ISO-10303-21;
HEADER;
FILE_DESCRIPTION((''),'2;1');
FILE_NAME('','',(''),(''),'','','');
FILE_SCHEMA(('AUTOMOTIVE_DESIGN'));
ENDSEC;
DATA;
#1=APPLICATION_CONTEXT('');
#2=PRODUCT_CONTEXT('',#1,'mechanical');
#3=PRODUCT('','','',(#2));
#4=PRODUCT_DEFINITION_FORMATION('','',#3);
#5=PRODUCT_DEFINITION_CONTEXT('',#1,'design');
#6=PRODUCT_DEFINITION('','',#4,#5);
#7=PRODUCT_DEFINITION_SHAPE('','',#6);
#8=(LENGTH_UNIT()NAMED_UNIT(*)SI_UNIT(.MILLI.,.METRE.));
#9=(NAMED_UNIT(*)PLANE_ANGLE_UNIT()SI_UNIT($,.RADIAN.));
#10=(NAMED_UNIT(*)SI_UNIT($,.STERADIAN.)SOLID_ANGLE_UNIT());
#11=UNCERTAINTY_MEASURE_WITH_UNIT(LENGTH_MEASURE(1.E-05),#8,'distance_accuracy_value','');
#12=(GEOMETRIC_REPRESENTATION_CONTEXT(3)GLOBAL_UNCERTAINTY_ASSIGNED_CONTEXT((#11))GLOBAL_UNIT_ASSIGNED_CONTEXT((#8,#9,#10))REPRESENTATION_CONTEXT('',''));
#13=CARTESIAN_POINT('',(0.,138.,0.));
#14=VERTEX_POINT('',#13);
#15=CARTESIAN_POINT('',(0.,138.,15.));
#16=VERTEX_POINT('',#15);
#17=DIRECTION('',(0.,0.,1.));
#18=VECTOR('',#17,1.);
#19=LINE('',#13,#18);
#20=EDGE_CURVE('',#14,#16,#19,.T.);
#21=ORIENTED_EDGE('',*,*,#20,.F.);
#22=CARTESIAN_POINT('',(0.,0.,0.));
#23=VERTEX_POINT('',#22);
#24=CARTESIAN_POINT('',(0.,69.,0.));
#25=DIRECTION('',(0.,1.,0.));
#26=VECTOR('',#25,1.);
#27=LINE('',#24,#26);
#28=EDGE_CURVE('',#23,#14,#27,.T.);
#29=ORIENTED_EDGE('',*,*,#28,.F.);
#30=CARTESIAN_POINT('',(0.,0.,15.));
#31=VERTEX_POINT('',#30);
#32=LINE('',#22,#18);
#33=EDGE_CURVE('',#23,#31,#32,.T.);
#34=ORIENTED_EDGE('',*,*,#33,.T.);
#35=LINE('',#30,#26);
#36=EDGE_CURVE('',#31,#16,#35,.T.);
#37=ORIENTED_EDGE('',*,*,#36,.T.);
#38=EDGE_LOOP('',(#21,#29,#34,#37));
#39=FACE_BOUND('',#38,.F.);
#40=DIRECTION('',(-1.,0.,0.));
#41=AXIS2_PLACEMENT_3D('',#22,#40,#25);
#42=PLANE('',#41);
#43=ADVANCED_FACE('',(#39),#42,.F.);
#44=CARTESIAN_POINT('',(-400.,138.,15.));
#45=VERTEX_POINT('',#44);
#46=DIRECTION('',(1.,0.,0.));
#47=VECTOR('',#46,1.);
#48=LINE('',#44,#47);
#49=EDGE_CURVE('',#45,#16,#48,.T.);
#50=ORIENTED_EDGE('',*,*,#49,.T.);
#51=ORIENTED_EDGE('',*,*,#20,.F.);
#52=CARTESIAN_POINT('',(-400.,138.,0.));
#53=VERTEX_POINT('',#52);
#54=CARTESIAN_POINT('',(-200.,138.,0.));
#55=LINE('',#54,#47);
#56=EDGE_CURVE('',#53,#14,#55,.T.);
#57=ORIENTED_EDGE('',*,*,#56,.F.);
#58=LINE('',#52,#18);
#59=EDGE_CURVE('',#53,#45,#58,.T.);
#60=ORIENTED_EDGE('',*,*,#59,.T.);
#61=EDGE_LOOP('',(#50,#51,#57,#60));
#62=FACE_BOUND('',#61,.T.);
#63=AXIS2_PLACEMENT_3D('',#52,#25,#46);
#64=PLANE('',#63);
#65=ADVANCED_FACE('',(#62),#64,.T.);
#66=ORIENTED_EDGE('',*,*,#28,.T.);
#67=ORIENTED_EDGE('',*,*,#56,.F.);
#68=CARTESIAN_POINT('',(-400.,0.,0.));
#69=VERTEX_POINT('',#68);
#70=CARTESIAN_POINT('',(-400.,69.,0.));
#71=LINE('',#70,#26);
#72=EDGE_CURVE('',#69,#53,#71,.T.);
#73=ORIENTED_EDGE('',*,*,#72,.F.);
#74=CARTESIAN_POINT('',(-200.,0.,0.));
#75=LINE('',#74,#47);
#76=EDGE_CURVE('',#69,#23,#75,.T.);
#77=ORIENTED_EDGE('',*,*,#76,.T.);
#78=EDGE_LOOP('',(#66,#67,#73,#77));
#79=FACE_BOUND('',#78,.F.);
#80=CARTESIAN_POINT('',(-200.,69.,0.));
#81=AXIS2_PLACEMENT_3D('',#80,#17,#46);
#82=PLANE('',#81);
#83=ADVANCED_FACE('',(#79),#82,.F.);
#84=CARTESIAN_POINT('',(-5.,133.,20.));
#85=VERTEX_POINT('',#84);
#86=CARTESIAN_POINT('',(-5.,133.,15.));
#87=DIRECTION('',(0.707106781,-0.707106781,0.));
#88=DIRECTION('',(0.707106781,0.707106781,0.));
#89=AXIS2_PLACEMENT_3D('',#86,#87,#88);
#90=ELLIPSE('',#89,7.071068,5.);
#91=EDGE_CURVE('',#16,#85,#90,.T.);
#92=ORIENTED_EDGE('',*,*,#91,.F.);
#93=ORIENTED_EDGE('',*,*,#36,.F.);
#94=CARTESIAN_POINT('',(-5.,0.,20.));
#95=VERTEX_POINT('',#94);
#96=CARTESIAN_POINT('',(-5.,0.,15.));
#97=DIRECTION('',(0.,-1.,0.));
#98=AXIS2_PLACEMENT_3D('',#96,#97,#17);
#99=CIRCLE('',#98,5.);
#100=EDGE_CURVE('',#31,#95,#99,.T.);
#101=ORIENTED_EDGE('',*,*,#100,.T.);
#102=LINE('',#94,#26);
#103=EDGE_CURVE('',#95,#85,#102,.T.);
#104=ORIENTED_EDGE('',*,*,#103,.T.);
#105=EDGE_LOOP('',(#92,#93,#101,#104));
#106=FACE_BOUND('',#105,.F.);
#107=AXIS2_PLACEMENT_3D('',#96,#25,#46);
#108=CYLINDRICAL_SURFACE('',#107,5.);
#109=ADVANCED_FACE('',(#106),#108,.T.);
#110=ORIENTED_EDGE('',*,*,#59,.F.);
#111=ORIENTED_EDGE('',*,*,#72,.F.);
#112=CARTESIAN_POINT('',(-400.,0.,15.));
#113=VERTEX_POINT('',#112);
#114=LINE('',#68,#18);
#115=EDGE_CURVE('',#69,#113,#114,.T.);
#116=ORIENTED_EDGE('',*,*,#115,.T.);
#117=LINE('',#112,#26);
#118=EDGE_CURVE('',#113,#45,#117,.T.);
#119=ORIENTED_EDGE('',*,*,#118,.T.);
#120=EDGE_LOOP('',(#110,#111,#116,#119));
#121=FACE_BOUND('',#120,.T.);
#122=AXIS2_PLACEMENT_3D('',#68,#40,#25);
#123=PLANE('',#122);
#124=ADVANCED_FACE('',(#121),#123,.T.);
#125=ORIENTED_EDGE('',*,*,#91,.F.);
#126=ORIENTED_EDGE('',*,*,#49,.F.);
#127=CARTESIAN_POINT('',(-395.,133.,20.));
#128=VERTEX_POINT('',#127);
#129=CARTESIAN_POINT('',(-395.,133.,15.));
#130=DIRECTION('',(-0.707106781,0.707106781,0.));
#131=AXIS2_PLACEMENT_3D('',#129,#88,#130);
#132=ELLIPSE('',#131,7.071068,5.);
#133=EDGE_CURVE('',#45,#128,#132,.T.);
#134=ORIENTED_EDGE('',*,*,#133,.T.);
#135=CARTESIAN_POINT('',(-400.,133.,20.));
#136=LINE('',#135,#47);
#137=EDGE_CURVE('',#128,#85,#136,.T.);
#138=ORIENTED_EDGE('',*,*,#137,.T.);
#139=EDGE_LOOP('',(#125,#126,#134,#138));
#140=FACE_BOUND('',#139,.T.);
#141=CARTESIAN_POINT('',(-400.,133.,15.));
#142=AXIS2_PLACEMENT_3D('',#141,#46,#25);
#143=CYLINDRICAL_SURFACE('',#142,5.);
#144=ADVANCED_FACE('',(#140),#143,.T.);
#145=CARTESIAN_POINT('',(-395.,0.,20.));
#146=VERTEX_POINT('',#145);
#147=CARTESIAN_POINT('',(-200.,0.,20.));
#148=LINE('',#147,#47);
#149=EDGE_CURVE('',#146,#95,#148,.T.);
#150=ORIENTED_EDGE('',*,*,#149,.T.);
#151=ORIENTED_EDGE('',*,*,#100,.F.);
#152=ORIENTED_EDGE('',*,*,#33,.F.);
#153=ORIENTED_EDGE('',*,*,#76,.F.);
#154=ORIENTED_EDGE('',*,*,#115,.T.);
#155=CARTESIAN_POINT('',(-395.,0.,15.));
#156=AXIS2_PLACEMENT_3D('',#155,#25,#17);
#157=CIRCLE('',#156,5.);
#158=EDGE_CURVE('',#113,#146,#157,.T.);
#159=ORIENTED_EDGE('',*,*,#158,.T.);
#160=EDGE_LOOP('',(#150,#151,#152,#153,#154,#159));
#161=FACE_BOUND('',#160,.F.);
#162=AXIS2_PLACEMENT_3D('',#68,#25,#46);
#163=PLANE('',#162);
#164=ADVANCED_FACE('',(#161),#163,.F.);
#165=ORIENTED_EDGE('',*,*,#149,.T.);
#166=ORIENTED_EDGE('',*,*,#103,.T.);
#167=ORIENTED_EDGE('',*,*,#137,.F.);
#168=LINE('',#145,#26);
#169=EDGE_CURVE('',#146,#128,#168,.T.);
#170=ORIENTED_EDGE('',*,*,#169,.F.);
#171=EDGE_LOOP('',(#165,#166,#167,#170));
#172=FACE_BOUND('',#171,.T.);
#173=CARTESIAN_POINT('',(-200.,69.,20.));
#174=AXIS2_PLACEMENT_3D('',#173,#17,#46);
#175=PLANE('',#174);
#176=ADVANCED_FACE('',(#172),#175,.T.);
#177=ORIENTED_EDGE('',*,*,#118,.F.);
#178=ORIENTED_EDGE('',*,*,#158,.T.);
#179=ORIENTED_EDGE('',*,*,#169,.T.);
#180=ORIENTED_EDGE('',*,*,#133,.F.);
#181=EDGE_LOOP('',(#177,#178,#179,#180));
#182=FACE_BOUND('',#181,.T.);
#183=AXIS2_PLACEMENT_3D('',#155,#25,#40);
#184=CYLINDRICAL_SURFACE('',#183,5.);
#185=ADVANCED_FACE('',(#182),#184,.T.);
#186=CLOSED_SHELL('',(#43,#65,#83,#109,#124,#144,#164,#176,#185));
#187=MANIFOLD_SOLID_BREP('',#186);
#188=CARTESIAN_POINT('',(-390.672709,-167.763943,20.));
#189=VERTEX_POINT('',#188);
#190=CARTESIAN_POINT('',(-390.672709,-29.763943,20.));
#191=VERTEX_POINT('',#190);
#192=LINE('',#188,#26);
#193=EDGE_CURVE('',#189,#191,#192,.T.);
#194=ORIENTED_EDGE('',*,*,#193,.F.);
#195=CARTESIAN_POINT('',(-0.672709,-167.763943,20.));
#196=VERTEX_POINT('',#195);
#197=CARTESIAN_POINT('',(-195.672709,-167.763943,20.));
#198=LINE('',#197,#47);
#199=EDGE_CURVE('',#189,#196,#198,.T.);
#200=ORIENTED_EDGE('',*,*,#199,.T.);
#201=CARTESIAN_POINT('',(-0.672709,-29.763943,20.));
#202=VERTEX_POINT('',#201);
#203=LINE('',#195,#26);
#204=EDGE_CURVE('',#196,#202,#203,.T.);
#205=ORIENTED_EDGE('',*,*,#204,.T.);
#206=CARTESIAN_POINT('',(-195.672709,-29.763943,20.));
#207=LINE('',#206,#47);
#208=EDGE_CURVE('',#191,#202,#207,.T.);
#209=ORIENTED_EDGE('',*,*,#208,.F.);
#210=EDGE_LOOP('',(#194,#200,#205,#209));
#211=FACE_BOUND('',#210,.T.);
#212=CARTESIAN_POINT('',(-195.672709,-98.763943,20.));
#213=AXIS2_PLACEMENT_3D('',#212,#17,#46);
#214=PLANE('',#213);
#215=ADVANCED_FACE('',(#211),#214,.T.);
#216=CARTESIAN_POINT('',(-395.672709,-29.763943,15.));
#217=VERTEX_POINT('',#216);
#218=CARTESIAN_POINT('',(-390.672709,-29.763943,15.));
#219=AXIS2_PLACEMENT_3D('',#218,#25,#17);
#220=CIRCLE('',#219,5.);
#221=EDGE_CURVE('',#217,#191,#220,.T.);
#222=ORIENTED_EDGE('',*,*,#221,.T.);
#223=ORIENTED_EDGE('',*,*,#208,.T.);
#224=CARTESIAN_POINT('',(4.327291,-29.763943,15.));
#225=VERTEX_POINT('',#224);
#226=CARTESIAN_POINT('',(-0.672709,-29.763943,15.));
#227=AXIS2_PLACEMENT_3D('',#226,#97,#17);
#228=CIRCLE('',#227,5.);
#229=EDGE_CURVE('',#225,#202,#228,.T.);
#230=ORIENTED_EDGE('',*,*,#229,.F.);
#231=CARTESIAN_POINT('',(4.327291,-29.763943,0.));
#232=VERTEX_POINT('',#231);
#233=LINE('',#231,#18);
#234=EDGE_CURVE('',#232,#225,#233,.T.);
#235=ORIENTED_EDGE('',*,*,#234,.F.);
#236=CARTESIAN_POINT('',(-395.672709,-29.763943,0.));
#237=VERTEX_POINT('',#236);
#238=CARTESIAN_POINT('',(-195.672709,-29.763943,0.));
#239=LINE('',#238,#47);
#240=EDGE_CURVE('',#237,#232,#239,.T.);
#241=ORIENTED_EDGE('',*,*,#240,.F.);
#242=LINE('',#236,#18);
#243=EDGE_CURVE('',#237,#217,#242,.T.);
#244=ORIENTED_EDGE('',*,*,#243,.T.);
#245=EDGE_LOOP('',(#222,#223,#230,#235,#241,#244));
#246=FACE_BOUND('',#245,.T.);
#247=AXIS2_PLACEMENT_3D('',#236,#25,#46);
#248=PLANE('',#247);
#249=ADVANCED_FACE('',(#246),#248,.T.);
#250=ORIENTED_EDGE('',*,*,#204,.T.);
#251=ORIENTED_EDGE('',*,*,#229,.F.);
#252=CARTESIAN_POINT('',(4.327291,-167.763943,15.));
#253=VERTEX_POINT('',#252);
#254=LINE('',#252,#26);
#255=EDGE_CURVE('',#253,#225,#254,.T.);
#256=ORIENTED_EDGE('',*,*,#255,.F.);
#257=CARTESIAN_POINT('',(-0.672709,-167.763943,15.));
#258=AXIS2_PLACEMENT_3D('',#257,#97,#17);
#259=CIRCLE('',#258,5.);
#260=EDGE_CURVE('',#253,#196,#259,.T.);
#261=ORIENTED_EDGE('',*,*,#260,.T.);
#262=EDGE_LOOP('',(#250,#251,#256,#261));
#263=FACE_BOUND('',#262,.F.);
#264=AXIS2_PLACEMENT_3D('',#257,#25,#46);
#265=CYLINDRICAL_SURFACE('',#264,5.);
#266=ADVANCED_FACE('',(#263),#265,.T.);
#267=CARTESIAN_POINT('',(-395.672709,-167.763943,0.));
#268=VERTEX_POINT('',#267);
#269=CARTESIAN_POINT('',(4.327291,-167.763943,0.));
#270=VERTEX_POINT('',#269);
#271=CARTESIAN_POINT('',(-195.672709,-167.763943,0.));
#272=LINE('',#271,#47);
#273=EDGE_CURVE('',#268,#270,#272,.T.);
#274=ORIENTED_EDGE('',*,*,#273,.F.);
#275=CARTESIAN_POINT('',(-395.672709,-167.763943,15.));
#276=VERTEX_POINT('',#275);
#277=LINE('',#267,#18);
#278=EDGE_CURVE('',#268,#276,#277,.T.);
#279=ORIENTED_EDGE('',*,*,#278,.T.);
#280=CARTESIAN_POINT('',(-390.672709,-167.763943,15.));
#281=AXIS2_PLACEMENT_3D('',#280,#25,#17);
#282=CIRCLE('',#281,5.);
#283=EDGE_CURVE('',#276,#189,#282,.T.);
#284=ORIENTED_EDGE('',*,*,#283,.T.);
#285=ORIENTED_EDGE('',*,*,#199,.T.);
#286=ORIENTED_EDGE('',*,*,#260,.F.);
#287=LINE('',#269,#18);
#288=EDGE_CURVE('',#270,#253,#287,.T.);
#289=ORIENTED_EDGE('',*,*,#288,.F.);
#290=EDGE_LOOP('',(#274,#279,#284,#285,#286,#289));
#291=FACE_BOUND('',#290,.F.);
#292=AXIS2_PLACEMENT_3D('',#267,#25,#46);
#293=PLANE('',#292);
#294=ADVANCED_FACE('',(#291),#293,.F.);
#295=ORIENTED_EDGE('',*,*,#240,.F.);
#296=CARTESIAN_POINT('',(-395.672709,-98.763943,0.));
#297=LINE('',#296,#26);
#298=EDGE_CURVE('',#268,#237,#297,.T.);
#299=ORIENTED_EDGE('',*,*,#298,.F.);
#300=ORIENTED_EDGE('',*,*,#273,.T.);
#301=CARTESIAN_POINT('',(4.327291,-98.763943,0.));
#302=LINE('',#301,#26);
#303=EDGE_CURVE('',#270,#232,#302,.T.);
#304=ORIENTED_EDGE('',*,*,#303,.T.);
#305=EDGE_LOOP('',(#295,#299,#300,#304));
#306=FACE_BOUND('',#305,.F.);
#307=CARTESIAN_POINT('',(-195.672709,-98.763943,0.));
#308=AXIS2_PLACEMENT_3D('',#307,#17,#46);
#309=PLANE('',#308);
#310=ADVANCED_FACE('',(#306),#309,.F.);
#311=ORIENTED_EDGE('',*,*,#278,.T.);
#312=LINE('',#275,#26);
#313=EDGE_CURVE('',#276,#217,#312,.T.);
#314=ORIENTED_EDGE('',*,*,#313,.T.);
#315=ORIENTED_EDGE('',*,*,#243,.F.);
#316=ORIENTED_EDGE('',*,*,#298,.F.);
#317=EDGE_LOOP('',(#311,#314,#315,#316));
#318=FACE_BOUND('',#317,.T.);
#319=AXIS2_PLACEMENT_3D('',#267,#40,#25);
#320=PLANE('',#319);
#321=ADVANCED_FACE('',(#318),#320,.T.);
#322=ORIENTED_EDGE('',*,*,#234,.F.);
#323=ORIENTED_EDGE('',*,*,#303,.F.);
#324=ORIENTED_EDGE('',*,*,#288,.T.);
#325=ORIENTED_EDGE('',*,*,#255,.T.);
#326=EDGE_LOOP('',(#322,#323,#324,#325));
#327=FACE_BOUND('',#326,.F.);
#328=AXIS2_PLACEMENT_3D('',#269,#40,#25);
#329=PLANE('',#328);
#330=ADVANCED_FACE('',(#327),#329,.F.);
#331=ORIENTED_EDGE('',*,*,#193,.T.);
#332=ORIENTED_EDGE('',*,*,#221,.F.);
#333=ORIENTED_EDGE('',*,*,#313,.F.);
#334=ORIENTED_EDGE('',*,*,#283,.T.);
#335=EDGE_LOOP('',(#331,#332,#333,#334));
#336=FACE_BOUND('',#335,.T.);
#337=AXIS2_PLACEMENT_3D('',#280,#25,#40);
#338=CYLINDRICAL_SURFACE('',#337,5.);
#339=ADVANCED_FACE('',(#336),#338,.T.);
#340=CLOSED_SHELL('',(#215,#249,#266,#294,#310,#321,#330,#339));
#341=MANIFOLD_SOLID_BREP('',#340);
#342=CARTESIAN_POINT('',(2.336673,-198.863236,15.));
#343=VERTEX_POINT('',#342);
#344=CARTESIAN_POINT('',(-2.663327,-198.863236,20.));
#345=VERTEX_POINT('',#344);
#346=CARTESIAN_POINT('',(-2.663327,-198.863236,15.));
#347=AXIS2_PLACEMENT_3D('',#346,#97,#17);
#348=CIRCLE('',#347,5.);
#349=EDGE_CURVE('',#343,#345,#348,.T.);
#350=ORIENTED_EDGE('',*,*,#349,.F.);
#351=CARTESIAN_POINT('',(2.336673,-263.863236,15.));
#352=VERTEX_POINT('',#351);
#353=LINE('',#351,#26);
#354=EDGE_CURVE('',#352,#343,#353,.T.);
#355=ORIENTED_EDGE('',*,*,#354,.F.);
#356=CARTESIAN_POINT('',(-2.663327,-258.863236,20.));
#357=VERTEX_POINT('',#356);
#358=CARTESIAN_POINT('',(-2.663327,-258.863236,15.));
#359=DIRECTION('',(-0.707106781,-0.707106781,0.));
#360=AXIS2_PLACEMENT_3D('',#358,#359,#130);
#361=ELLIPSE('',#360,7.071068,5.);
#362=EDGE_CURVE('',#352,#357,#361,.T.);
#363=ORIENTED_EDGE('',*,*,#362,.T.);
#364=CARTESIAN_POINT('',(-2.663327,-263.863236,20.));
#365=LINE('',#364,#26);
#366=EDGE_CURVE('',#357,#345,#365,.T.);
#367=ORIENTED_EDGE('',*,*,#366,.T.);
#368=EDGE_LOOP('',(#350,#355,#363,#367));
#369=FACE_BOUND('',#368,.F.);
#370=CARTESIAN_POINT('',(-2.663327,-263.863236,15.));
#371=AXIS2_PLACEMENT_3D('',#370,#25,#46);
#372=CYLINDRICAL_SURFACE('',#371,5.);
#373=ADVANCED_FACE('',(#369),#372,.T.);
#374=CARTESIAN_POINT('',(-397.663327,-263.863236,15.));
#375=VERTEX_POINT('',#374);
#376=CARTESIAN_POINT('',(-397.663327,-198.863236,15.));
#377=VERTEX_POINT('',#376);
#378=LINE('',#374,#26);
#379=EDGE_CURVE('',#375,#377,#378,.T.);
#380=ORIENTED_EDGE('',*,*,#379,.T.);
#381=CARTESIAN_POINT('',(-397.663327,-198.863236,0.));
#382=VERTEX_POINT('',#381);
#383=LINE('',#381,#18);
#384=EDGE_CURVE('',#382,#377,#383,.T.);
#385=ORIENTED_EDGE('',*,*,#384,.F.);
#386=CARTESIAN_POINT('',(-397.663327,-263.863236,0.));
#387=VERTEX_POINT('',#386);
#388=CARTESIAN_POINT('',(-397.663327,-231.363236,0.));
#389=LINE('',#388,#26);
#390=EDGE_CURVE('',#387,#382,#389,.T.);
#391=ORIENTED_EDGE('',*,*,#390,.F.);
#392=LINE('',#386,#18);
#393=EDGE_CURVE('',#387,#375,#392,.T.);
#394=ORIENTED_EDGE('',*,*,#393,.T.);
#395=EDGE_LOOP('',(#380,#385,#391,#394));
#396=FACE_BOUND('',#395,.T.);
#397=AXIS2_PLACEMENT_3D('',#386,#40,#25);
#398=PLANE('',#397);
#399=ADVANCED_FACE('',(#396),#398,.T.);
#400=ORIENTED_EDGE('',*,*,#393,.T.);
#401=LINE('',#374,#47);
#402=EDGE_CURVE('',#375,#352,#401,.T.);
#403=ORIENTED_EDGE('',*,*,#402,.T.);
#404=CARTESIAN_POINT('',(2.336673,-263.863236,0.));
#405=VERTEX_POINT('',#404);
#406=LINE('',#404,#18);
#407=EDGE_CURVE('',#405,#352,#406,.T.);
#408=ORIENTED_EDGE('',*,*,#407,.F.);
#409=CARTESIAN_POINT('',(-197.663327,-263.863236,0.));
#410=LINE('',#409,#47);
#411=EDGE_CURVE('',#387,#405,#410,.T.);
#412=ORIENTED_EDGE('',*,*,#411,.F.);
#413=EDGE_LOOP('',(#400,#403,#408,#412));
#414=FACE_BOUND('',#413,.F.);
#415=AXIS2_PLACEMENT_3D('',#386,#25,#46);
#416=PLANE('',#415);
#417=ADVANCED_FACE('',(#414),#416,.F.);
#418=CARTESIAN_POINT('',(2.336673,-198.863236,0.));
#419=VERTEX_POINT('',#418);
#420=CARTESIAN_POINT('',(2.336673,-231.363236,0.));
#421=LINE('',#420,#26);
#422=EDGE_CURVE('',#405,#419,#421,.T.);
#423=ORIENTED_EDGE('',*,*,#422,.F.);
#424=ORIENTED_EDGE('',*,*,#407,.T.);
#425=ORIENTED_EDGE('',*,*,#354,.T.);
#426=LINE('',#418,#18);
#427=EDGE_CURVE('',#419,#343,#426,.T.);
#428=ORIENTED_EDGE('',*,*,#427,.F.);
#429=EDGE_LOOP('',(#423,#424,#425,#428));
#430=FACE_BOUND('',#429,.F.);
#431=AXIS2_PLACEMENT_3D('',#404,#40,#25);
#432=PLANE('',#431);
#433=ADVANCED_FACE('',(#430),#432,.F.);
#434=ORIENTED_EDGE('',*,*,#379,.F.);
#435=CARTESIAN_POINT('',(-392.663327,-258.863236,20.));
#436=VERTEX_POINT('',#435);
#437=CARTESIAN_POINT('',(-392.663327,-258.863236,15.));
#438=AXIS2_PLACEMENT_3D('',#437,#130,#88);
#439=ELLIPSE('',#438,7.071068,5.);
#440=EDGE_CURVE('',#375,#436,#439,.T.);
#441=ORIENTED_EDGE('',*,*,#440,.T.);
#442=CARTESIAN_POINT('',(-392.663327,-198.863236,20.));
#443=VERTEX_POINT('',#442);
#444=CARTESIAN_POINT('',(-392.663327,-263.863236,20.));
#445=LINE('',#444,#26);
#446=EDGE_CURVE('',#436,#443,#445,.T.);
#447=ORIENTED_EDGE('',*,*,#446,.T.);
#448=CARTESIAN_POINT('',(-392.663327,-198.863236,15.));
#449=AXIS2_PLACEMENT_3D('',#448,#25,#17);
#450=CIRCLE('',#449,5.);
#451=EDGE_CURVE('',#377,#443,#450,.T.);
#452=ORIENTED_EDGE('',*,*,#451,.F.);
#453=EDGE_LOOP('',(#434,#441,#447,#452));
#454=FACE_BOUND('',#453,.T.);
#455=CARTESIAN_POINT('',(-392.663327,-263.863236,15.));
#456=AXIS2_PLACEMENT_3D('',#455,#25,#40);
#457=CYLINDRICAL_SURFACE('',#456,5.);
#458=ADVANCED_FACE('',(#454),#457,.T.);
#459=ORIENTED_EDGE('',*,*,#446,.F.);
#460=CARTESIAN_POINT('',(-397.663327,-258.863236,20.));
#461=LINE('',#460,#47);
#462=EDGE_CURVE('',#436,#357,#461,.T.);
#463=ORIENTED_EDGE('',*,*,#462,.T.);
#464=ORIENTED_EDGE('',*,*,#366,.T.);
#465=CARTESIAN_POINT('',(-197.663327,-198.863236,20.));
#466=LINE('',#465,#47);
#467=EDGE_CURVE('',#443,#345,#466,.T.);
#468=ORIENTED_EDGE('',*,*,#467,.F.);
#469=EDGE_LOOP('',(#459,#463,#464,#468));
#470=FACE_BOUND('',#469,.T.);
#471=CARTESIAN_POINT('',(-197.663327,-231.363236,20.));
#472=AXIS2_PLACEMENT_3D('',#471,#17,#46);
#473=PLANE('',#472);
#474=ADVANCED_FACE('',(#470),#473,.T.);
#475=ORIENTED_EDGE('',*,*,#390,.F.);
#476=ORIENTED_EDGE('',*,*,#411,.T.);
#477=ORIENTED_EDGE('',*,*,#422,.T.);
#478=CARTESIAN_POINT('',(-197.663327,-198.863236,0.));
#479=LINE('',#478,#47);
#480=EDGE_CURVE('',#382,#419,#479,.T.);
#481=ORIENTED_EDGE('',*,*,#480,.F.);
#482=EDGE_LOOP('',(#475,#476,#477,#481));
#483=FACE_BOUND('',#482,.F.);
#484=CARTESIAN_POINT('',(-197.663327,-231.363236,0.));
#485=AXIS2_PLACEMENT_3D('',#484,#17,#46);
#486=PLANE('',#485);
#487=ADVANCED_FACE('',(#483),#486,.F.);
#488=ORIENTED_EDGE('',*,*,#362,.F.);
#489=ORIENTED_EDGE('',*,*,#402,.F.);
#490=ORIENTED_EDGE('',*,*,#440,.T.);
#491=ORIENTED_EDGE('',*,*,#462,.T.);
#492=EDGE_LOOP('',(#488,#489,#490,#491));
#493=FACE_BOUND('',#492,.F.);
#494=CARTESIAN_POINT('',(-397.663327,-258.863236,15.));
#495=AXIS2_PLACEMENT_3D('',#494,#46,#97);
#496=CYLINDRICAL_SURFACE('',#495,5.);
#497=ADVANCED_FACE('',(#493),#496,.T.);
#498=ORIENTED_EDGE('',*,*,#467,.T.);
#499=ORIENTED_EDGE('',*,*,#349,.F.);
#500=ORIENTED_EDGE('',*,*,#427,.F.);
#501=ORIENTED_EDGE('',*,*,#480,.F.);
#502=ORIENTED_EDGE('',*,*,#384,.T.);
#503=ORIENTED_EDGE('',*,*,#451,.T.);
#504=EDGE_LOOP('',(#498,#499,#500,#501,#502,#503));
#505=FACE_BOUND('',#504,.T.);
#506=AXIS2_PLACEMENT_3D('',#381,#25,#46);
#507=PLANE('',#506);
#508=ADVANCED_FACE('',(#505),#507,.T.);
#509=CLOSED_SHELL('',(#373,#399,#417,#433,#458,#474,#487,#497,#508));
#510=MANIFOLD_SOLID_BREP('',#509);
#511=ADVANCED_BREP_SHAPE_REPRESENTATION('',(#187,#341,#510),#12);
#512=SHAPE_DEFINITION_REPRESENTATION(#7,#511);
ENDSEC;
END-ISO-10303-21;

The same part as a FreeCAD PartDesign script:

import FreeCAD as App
import Part
import Sketcher


def edges_at(feature, points):
    """Names of the edges that pass closest to the given points."""
    edges = feature.Shape.Edges
    near = lambda p: min(range(len(edges)), key=lambda i: edges[i].distToShape(Part.Vertex(*p))[0])
    return sorted({f"Edge{near(p) + 1}" for p in points})


def add_polygon(sketch, points):
    """Adds a closed chain of lines whose ends are joined by coincident constraints."""
    first, n = sketch.GeometryCount, len(points)
    for a, b in zip(points, points[1:] + points[:1]):
        sketch.addGeometry(Part.LineSegment(App.Vector(*a, 0), App.Vector(*b, 0)), False)
    for i in range(n):
        sketch.addConstraint(Sketcher.Constraint("Coincident", first + i, 2, first + (i + 1) % n, 1))

doc = App.newDocument("Part")
body = doc.addObject("PartDesign::Body", "Body")
body.AllowCompound = True

# Sketch on XY plane
sketch1 = body.newObject("Sketcher::SketchObject", "Sketch")
sketch1.AttachmentSupport = (doc.getObject("XY_Plane"), [""])
sketch1.MapMode = "FlatFace"
add_polygon(sketch1, [(-400, 138), (-400, 0), (0, 0), (0, 138)])  # lines 0-3
add_polygon(sketch1, [(-395.672709, -29.763943), (-395.672709, -167.763943), (4.327291, -167.763943), (4.327291, -29.763943)])  # lines 4-7
add_polygon(sketch1, [(-397.663327, -198.863236), (-397.663327, -263.863236), (2.336673, -263.863236), (2.336673, -198.863236)])  # lines 8-11
sketch1.addConstraint([
    Sketcher.Constraint("Vertical", 0),
    Sketcher.Constraint("Horizontal", 1),
    Sketcher.Constraint("Vertical", 2),
    Sketcher.Constraint("Horizontal", 3),
    Sketcher.Constraint("Vertical", 4),
    Sketcher.Constraint("Horizontal", 5),
    Sketcher.Constraint("Vertical", 6),
    Sketcher.Constraint("Horizontal", 7),
    Sketcher.Constraint("Vertical", 8),
    Sketcher.Constraint("Horizontal", 9),
    Sketcher.Constraint("Vertical", 10),
    Sketcher.Constraint("Horizontal", 11),
    Sketcher.Constraint("Coincident", 1, 2, -1, 1),
    Sketcher.Constraint("Equal", 3, 5),
    Sketcher.Constraint("Equal", 7, 9),
    Sketcher.Constraint("Equal", 2, 4),
    Sketcher.Constraint("DistanceX", 1, 1, 1, 2, 400.0),
    Sketcher.Constraint("DistanceY", 0, 2, 0, 1, 138.0),
    Sketcher.Constraint("DistanceY", 8, 2, 8, 1, 65.0),
    Sketcher.Constraint("DistanceX", 4, 2, -1, 1, 395.672709),
    Sketcher.Constraint("DistanceX", 8, 2, 5, 2, 401.990618),
    Sketcher.Constraint("DistanceY", 4, 2, -1, 1, 167.763943),
    Sketcher.Constraint("DistanceY", 8, 2, -1, 1, 263.863236),
])
pad1 = body.newObject("PartDesign::Pad", "Pad")
pad1.Profile = sketch1
pad1.Length = 20
doc.recompute()

fillet = body.newObject("PartDesign::Fillet", "Fillet")
fillet.Base = (pad1, edges_at(pad1, [
    (-397.663, -231.363, 20),
    (2.337, -231.363, 20),
    (-197.663, -263.863, 20),
    (-395.673, -98.764, 20),
    (4.327, -98.764, 20),
    (0, 69, 20),
    (-400, 69, 20),
    (-200, 138, 20),
]))
fillet.Radius = 5

doc.recompute()
